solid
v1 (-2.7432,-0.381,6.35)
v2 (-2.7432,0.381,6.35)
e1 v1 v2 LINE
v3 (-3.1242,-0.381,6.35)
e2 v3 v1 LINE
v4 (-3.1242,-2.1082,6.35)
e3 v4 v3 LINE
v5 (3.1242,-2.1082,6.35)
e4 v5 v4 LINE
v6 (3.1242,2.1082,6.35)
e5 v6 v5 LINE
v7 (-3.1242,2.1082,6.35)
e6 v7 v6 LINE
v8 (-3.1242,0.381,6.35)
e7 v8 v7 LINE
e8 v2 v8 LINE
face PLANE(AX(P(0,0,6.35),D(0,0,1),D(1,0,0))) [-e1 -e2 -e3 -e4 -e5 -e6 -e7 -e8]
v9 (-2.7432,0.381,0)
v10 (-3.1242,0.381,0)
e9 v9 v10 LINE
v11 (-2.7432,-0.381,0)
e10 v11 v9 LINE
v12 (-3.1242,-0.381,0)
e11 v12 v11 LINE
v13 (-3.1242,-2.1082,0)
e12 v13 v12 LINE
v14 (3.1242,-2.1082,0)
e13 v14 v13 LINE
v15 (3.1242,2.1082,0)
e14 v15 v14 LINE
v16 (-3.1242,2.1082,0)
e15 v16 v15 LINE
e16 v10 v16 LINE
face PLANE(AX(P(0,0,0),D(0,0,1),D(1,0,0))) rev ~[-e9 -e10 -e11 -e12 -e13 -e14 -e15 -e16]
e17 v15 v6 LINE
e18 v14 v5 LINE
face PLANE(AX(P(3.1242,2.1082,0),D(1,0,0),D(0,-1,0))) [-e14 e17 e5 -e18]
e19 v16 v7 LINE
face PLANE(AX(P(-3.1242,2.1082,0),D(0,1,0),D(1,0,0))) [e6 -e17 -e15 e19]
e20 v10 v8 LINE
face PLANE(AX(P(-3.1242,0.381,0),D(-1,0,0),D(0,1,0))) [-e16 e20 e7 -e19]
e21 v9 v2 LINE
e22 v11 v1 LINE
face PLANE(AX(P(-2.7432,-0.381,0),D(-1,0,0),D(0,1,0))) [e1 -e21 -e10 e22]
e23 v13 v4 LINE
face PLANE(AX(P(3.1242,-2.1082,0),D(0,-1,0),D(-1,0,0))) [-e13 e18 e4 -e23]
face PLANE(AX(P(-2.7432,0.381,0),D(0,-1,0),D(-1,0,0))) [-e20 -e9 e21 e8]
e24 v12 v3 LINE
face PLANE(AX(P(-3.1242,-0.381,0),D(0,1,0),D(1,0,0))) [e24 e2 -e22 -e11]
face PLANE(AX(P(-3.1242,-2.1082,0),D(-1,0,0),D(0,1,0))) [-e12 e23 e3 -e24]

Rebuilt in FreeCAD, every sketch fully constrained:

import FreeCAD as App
import Part
import Sketcher
Q = App.Units.Quantity

doc = App.newDocument("Part")
body = doc.addObject("PartDesign::Body", "Body")

sketch1 = body.newObject("Sketcher::SketchObject", "Sketch")
sketch1.AttachmentSupport = (doc.getObject("XY_Plane"), [""])
sketch1.MapMode = "FlatFace"
sketch1.addGeometry([
    Part.LineSegment(App.Vector(3.12, 2.11, 0), App.Vector(-3.12, 2.11, 0)),
    Part.LineSegment(App.Vector(-3.12, 2.11, 0), App.Vector(-3.12, 0.38, 0)),
    Part.LineSegment(App.Vector(-3.12, 0.38, 0), App.Vector(-2.74, 0.38, 0)),
    Part.LineSegment(App.Vector(-2.74, 0.38, 0), App.Vector(-2.74, -0.38, 0)),
    Part.LineSegment(App.Vector(-2.74, -0.38, 0), App.Vector(-3.12, -0.38, 0)),
    Part.LineSegment(App.Vector(-3.12, -0.38, 0), App.Vector(-3.12, -2.11, 0)),
    Part.LineSegment(App.Vector(-3.12, -2.11, 0), App.Vector(3.12, -2.11, 0)),
    Part.LineSegment(App.Vector(3.12, -2.11, 0), App.Vector(3.12, 2.11, 0)),
], False)
sketch1.addConstraint([
    Sketcher.Constraint("Coincident", 0, 2, 1, 1),
    Sketcher.Constraint("Coincident", 1, 2, 2, 1),
    Sketcher.Constraint("Coincident", 2, 2, 3, 1),
    Sketcher.Constraint("Coincident", 3, 2, 4, 1),
    Sketcher.Constraint("Coincident", 4, 2, 5, 1),
    Sketcher.Constraint("Coincident", 5, 2, 6, 1),
    Sketcher.Constraint("Coincident", 6, 2, 7, 1),
    Sketcher.Constraint("Coincident", 7, 2, 0, 1),
    Sketcher.Constraint("Horizontal", 0),
    Sketcher.Constraint("Vertical", 1),
    Sketcher.Constraint("Horizontal", 2),
    Sketcher.Constraint("Vertical", 3),
    Sketcher.Constraint("Horizontal", 4),
    Sketcher.Constraint("Vertical", 5),
    Sketcher.Constraint("Horizontal", 6),
    Sketcher.Constraint("Vertical", 7),
    Sketcher.Constraint("Symmetric", 0, 2, 6, 2, -1, 1),
    Sketcher.Constraint("Symmetric", 1, 2, 4, 2, -1),
    Sketcher.Constraint("DistanceY", 3, 2, 3, 1, Q("0.03 in")),
    Sketcher.Constraint("DistanceX", 0, 2, 0, 1, Q("0.246 in")),
    Sketcher.Constraint("DistanceX", 2, 1, 2, 2, Q("0.015 in")),
    Sketcher.Constraint("DistanceY", 1, 2, 1, 1, Q("0.068 in")),
])
pad1 = body.newObject("PartDesign::Pad", "Pad")
pad1.Profile = sketch1
pad1.Length = Q("0.25 in")

doc.recompute()
